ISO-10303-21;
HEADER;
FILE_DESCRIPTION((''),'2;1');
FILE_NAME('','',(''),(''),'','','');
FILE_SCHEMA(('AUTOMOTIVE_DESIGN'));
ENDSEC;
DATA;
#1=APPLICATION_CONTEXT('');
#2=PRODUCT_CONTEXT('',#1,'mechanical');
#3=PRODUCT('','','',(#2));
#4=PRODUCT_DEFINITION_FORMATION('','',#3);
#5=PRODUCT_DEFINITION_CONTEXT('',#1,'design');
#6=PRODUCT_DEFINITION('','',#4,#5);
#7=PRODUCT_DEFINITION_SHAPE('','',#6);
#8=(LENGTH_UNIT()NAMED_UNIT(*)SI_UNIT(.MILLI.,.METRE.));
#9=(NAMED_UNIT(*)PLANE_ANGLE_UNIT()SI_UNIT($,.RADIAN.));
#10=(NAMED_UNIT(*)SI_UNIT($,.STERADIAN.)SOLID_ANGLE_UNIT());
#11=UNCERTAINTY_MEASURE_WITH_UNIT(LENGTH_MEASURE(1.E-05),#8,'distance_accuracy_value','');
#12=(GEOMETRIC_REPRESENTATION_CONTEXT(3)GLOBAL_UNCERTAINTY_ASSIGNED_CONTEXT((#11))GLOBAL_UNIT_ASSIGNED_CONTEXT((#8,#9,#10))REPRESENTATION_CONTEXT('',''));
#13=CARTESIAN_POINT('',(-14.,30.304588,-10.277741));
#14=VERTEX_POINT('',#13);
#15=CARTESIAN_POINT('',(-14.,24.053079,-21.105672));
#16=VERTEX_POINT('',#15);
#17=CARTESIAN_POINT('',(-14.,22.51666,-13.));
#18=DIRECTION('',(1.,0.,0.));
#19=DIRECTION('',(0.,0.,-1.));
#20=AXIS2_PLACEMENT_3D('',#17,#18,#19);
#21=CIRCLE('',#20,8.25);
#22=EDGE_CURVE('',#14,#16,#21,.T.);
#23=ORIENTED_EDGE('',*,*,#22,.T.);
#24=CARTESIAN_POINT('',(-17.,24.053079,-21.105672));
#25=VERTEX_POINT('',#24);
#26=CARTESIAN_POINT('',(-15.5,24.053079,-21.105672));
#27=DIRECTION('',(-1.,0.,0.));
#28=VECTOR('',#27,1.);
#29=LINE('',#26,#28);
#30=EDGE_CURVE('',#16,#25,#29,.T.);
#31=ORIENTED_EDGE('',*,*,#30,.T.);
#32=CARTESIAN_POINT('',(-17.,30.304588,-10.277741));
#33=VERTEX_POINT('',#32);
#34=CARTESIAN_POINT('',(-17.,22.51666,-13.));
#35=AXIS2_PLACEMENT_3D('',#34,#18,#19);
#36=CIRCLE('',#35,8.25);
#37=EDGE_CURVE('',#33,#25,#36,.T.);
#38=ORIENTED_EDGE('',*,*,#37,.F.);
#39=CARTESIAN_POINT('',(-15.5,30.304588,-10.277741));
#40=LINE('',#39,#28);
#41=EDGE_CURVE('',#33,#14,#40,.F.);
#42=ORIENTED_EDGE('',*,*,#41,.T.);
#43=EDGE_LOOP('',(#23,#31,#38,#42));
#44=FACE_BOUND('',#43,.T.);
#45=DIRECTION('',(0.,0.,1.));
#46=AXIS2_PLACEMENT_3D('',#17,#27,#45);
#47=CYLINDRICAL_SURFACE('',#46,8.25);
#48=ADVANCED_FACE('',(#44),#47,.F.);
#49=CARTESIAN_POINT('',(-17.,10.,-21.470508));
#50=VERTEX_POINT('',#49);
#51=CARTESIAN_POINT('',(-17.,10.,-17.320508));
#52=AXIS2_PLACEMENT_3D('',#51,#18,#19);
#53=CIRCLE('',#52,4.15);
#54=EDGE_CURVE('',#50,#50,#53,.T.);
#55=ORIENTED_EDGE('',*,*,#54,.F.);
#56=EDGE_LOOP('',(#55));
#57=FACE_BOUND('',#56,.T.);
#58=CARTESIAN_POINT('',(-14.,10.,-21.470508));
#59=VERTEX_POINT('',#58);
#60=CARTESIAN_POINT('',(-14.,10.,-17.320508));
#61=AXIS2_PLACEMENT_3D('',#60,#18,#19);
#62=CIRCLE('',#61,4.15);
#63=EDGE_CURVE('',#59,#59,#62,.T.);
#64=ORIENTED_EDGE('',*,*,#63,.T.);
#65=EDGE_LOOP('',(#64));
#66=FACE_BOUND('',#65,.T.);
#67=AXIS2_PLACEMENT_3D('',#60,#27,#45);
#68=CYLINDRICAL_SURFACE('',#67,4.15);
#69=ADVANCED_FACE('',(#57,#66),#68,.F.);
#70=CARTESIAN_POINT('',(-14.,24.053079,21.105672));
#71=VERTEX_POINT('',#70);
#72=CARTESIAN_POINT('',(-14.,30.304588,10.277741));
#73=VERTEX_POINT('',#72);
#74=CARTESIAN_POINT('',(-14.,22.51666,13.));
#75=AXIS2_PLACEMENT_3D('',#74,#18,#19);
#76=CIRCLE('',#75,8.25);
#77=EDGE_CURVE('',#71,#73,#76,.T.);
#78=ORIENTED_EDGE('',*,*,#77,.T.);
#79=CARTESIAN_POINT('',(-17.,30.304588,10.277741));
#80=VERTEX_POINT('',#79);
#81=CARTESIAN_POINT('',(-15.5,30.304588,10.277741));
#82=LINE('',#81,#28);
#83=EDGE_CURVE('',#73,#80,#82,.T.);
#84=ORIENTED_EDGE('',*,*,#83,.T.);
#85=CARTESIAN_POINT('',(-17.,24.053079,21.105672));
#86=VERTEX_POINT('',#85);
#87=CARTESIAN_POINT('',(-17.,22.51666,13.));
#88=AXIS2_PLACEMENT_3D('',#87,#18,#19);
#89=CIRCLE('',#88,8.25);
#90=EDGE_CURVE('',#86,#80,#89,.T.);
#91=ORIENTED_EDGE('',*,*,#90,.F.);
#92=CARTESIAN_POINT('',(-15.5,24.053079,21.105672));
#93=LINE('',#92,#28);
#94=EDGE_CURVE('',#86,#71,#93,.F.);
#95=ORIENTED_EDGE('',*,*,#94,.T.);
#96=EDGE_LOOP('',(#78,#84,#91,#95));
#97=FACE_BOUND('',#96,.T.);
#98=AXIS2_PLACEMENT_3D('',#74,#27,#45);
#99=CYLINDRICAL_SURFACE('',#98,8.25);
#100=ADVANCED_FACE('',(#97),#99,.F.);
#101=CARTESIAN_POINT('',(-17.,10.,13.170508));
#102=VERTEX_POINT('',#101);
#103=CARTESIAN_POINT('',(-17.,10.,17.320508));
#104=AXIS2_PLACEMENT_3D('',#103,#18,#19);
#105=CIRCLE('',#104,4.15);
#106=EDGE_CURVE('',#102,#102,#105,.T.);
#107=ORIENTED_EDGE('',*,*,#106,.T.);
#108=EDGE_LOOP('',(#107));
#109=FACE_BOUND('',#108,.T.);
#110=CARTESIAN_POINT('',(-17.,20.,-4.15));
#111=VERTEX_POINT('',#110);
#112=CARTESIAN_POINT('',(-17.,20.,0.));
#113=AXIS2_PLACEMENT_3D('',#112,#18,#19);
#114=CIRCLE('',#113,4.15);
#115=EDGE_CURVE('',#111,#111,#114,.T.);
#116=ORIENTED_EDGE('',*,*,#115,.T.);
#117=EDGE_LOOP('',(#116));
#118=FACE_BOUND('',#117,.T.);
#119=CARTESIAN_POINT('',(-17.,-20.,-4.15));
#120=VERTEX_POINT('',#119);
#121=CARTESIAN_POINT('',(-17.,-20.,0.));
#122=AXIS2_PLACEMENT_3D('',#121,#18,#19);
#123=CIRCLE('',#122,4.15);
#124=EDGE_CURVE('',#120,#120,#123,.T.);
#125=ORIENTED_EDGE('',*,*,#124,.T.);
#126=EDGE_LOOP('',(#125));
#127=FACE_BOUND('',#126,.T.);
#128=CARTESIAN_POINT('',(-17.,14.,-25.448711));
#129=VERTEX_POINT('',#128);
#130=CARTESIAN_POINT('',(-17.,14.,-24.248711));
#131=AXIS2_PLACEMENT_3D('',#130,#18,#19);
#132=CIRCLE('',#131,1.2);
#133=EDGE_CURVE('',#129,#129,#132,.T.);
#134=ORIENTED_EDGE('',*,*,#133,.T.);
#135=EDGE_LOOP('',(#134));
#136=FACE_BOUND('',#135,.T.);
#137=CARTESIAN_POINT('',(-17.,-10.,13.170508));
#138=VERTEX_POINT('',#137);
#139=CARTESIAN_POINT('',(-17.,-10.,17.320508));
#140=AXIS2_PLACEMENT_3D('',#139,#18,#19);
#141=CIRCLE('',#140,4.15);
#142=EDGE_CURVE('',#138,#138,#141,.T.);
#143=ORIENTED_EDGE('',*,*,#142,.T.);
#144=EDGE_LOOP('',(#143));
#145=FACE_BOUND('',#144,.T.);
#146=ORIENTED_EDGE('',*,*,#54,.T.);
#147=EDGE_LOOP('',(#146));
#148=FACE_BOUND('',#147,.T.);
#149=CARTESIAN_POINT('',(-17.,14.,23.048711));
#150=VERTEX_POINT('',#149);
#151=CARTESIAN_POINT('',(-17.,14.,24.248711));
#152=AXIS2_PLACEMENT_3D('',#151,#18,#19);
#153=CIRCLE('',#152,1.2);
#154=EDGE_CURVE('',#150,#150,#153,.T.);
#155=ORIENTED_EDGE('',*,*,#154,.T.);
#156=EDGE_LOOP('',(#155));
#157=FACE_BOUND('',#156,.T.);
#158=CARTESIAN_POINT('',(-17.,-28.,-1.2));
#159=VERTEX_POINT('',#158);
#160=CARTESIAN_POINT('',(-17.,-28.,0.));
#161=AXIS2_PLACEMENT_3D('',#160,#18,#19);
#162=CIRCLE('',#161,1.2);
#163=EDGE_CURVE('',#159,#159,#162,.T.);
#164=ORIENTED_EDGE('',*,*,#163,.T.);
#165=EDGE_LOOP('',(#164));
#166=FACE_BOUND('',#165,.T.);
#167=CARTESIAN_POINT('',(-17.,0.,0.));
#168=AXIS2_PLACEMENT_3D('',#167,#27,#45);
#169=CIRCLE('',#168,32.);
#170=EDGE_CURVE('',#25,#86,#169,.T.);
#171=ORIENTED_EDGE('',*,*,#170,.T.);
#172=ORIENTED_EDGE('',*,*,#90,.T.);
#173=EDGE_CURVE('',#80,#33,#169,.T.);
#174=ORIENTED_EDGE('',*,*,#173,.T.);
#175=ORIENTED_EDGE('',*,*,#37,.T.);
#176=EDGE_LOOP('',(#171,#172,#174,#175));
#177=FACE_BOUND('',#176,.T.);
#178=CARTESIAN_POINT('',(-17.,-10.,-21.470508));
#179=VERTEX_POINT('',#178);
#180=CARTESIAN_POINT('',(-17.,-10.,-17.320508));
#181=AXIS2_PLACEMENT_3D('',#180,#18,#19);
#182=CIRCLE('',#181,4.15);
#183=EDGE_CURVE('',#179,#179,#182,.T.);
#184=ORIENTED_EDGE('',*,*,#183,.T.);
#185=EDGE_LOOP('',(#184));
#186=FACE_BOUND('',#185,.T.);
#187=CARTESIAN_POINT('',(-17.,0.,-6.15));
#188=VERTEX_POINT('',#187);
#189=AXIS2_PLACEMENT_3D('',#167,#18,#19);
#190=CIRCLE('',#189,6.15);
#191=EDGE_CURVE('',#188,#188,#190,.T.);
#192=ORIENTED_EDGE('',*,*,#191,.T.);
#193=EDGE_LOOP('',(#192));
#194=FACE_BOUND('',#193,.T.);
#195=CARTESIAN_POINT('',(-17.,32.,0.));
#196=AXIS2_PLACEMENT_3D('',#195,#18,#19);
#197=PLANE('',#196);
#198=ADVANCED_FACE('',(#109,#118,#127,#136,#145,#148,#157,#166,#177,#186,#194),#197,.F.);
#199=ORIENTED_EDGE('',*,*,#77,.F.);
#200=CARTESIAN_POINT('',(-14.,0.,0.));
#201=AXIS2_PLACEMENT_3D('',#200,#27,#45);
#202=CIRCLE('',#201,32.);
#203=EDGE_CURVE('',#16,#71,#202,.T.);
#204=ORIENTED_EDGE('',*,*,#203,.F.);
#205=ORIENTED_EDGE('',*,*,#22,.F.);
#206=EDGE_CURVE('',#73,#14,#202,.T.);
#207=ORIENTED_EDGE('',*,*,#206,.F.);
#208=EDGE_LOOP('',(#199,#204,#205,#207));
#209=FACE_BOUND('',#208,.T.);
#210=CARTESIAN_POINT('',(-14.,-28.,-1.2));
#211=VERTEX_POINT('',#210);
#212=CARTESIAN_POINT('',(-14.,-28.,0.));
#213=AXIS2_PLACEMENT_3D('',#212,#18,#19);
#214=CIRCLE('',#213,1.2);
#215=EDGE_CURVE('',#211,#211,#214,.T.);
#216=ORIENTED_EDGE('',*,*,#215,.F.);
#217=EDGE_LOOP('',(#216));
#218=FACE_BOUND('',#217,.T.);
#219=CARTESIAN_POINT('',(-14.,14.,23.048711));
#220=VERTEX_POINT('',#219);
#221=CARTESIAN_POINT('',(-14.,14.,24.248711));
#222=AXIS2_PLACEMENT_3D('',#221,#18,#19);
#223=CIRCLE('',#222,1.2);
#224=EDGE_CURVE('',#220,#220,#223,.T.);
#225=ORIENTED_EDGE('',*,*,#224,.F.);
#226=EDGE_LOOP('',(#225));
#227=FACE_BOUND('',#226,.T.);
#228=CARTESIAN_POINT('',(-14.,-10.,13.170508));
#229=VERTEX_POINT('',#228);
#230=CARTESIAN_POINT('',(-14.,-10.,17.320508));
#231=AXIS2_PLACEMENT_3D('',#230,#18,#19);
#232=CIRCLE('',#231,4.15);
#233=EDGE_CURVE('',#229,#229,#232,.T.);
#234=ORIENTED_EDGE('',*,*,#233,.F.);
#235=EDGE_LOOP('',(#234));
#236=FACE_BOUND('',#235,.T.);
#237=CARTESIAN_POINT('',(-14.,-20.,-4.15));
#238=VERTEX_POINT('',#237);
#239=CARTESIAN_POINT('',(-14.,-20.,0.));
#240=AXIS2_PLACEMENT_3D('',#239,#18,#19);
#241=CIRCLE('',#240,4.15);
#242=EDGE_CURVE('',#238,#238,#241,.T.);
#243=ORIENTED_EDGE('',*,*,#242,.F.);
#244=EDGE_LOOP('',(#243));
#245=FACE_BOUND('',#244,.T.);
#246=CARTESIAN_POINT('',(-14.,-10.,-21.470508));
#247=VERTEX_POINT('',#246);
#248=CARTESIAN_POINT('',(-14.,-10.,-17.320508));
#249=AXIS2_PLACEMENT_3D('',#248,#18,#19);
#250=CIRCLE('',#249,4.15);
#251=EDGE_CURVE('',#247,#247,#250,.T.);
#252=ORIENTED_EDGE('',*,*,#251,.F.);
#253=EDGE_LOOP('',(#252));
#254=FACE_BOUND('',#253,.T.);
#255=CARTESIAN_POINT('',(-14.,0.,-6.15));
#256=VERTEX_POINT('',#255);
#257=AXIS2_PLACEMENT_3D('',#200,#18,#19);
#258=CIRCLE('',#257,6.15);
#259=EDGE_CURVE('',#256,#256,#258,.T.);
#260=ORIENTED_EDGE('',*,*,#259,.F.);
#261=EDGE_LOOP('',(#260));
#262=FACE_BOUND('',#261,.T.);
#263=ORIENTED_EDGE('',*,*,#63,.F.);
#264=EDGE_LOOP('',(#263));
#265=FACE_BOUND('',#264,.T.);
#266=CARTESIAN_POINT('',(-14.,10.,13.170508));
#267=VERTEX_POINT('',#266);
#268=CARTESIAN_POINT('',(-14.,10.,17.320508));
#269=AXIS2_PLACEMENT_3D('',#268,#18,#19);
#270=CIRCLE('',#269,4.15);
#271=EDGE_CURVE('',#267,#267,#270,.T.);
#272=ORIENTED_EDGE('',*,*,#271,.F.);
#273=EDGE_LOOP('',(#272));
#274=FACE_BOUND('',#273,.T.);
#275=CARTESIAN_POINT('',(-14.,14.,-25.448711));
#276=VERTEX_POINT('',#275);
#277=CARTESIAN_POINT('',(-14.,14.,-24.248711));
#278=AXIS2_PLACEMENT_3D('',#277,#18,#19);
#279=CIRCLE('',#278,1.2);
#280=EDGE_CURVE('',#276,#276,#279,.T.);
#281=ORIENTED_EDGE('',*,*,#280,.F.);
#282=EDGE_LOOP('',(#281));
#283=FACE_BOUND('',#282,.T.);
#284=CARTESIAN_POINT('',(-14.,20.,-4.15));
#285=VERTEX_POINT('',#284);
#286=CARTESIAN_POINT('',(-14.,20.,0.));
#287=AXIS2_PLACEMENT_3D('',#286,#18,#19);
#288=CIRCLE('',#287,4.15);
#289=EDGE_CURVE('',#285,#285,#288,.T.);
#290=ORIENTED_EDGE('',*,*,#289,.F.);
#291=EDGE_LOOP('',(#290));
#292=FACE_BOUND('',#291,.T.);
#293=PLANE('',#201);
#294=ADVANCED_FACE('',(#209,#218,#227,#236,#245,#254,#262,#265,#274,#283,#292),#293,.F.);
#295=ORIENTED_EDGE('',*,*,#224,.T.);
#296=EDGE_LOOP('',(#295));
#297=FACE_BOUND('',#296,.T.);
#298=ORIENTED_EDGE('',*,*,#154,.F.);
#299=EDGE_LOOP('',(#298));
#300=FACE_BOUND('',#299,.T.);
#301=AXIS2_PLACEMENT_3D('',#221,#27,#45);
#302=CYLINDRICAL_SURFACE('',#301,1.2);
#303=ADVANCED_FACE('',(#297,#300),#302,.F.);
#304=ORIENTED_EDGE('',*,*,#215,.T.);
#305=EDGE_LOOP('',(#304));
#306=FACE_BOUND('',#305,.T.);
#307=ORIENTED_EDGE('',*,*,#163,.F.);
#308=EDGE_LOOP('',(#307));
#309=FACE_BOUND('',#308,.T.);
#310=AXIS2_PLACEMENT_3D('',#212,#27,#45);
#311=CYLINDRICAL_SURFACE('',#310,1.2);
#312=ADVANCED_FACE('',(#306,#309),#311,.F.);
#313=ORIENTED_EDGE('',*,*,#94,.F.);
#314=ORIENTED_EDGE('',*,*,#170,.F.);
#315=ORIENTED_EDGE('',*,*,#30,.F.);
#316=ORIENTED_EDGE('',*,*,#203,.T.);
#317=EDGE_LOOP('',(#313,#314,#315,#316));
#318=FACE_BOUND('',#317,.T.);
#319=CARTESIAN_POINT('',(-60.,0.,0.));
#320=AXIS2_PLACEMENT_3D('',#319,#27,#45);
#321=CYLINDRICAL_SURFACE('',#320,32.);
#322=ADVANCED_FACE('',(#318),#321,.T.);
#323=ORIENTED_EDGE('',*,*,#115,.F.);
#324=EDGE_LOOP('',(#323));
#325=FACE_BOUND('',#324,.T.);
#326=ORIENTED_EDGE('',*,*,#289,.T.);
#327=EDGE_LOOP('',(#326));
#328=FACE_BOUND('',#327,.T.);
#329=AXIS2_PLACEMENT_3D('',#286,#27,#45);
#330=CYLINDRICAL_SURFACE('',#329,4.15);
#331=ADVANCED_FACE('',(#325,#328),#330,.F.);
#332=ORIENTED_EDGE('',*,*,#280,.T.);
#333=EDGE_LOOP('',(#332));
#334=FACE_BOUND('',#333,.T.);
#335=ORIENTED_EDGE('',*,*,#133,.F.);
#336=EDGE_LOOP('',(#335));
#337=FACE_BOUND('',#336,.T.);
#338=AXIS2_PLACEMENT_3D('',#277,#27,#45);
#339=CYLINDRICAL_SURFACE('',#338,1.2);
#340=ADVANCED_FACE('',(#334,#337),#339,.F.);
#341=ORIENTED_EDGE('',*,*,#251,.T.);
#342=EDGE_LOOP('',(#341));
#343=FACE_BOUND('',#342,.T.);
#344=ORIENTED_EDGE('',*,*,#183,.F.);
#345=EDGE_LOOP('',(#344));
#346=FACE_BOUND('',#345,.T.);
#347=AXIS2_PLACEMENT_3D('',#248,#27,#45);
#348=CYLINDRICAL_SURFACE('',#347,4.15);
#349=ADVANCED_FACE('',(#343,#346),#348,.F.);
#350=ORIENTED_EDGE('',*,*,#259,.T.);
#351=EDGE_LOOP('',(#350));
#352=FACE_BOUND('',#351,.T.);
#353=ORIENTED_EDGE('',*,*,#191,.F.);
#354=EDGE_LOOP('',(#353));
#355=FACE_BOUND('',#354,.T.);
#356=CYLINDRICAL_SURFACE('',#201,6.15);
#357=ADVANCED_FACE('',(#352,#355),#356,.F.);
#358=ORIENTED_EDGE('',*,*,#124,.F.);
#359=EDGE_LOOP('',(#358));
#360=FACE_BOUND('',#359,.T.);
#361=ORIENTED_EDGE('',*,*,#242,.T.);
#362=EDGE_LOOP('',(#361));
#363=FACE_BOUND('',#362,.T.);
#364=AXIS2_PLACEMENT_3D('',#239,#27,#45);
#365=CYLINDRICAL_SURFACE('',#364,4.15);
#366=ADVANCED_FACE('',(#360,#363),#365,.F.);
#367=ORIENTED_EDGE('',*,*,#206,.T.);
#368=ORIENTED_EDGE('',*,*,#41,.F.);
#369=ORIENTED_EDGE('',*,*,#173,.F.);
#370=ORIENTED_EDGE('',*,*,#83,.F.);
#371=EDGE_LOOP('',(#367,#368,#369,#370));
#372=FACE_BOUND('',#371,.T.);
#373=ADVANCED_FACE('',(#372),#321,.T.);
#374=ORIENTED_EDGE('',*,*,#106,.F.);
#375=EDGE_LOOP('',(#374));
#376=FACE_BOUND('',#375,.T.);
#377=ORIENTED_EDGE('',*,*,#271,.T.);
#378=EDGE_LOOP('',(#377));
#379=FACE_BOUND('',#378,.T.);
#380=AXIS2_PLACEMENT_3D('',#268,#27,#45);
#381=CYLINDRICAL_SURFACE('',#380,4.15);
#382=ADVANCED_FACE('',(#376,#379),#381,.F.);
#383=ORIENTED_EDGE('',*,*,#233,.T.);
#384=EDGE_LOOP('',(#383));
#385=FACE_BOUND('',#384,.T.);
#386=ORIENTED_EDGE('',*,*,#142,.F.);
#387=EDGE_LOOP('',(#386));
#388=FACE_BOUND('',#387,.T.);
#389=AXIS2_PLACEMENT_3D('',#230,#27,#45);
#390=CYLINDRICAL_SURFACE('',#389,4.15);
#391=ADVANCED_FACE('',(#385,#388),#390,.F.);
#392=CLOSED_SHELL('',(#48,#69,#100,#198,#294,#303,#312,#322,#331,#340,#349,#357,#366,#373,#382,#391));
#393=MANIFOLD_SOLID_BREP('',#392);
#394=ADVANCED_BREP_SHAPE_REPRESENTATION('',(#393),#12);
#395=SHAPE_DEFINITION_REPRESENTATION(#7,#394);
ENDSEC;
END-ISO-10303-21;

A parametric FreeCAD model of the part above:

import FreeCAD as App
import Part
import Sketcher
from FreeCAD import Vector
Q = App.Units.Quantity


def add_polygon(sketch, points):
    """Adds a closed chain of lines whose ends are joined by coincident constraints."""
    first, n = sketch.GeometryCount, len(points)
    for a, b in zip(points, points[1:] + points[:1]):
        sketch.addGeometry(Part.LineSegment(App.Vector(*a, 0), App.Vector(*b, 0)), False)
    for i in range(n):
        sketch.addConstraint(Sketcher.Constraint("Coincident", first + i, 2, first + (i + 1) % n, 1))

doc = App.newDocument("Part")
body = doc.addObject("PartDesign::Body", "Body")

sketch1 = doc.addObject("Sketcher::SketchObject", "Sketch")
body.addObject(sketch1)
sketch1.AttachmentSupport = (doc.XY_Plane, [""])
sketch1.MapMode = "FlatFace"
add_polygon(sketch1, [(-17, 32), (-17, 0), (-14, 0), (-14, 32)])
sketch1.addConstraint([
    Sketcher.Constraint("Vertical", 0),
    Sketcher.Constraint("Horizontal", 1),
    Sketcher.Constraint("Vertical", 2),
    Sketcher.Constraint("Horizontal", 3),
    Sketcher.Constraint("PointOnObject", 0, 2, -1),
    Sketcher.Constraint("DistanceX", 1, 1, 1, 2, Q("3 mm")),
    Sketcher.Constraint("DistanceY", 0, 2, 0, 1, Q("32 mm")),
    Sketcher.Constraint("DistanceX", 0, 2, -1, 1, Q("17 mm")),
])
revolution = doc.addObject("PartDesign::Revolution", "Revolution")
body.addObject(revolution)
revolution.Profile = sketch1
revolution.ReferenceAxis = (sketch1, ["H_Axis"])
revolution.Angle = 360

sketch2 = doc.addObject("Sketcher::SketchObject", "Sketch001")
body.addObject(sketch2)
sketch2.AttachmentSupport = (doc.YZ_Plane, [""])
sketch2.MapMode = "FlatFace"
sketch2.AttachmentOffset = App.Placement(Vector(0, 0, -17), App.Rotation())
sketch2.addGeometry([
    Part.Circle(Vector(0, 0, 0), Vector(0, 0, 1), 6.2),
    Part.Circle(Vector(20, 0, 0), Vector(0, 0, 1), 4.2),
    Part.Circle(Vector(10, 17.3, 0), Vector(0, 0, 1), 4.2),
    Part.Circle(Vector(-10, 17.3, 0), Vector(0, 0, 1), 4.2),
    Part.Circle(Vector(-20, 0, 0), Vector(0, 0, 1), 4.2),
    Part.Circle(Vector(-10, -17.3, 0), Vector(0, 0, 1), 4.2),
    Part.Circle(Vector(10, -17.3, 0), Vector(0, 0, 1), 4.2),
], False)
sketch2.addConstraint([
    Sketcher.Constraint("Coincident", 0, 3, -1, 1),
    Sketcher.Constraint("Equal", 1, 2),
    Sketcher.Constraint("Equal", 2, 3),
    Sketcher.Constraint("Equal", 3, 4),
    Sketcher.Constraint("Equal", 4, 5),
    Sketcher.Constraint("Equal", 5, 6),
    Sketcher.Constraint("Symmetric", 1, 3, 4, 3, -1, 1),
    Sketcher.Constraint("Symmetric", 2, 3, 5, 3, -1, 1),
    Sketcher.Constraint("Symmetric", 3, 3, 6, 3, -1, 1),
    Sketcher.Constraint("Symmetric", 2, 3, 3, 3, -2),
    Sketcher.Constraint("PointOnObject", 1, 3, -1),
    Sketcher.Constraint("Diameter", 0, Q("12.3 mm")),
    Sketcher.Constraint("Diameter", 1, Q("8.3 mm")),
    Sketcher.Constraint("DistanceX", -1, 1, 1, 3, Q("20 mm")),
    Sketcher.Constraint("DistanceX", -1, 1, 2, 3, Q("10 mm")),
    Sketcher.Constraint("DistanceY", -1, 1, 2, 3, Q("17.320508 mm")),
])
pocket1 = doc.addObject("PartDesign::Pocket", "Pocket")
body.addObject(pocket1)
pocket1.Profile = sketch2
pocket1.Length = 3
pocket1.Reversed = True

sketch3 = doc.addObject("Sketcher::SketchObject", "Sketch002")
body.addObject(sketch3)
sketch3.AttachmentSupport = (doc.YZ_Plane, [""])
sketch3.MapMode = "FlatFace"
sketch3.AttachmentOffset = App.Placement(Vector(0, 0, -17), App.Rotation())
sketch3.addGeometry([
    Part.Circle(Vector(23, 13, 0), Vector(0, 0, 1), 8),
    Part.Circle(Vector(23, -13, 0), Vector(0, 0, 1), 8),
], False)
sketch3.addConstraint([
    Sketcher.Constraint("Equal", 0, 1),
    Sketcher.Constraint("Symmetric", 0, 3, 1, 3, -1),
    Sketcher.Constraint("Diameter", 0, Q("16.5 mm")),
    Sketcher.Constraint("DistanceY", -1, 1, 0, 3, Q("13 mm")),
    Sketcher.Constraint("DistanceX", -1, 1, 0, 3, Q("22.51666 mm")),
])
pocket2 = doc.addObject("PartDesign::Pocket", "Pocket001")
body.addObject(pocket2)
pocket2.Profile = sketch3
pocket2.Length = 3
pocket2.Reversed = True

sketch4 = doc.addObject("Sketcher::SketchObject", "Sketch003")
body.addObject(sketch4)
sketch4.AttachmentSupport = (doc.YZ_Plane, [""])
sketch4.MapMode = "FlatFace"
sketch4.AttachmentOffset = App.Placement(Vector(0, 0, -17), App.Rotation())
sketch4.addGeometry([
    Part.Circle(Vector(14, 24.2, 0), Vector(0, 0, 1), 1.2),
    Part.Circle(Vector(-28, 0, 0), Vector(0, 0, 1), 1.2),
    Part.Circle(Vector(14, -24.2, 0), Vector(0, 0, 1), 1.2),
], False)
sketch4.addConstraint([
    Sketcher.Constraint("Equal", 0, 1),
    Sketcher.Constraint("Equal", 1, 2),
    Sketcher.Constraint("Symmetric", 0, 3, 2, 3, -1),
    Sketcher.Constraint("PointOnObject", 1, 3, -1),
    Sketcher.Constraint("Diameter", 0, Q("2.4 mm")),
    Sketcher.Constraint("DistanceX", -1, 1, 0, 3, Q("14 mm")),
    Sketcher.Constraint("DistanceX", 1, 3, -1, 1, Q("28 mm")),
    Sketcher.Constraint("DistanceY", -1, 1, 0, 3, Q("24.248711 mm")),
])
pocket3 = doc.addObject("PartDesign::Pocket", "Pocket002")
body.addObject(pocket3)
pocket3.Profile = sketch4
pocket3.Length = 3
pocket3.Reversed = True

doc.recompute()
